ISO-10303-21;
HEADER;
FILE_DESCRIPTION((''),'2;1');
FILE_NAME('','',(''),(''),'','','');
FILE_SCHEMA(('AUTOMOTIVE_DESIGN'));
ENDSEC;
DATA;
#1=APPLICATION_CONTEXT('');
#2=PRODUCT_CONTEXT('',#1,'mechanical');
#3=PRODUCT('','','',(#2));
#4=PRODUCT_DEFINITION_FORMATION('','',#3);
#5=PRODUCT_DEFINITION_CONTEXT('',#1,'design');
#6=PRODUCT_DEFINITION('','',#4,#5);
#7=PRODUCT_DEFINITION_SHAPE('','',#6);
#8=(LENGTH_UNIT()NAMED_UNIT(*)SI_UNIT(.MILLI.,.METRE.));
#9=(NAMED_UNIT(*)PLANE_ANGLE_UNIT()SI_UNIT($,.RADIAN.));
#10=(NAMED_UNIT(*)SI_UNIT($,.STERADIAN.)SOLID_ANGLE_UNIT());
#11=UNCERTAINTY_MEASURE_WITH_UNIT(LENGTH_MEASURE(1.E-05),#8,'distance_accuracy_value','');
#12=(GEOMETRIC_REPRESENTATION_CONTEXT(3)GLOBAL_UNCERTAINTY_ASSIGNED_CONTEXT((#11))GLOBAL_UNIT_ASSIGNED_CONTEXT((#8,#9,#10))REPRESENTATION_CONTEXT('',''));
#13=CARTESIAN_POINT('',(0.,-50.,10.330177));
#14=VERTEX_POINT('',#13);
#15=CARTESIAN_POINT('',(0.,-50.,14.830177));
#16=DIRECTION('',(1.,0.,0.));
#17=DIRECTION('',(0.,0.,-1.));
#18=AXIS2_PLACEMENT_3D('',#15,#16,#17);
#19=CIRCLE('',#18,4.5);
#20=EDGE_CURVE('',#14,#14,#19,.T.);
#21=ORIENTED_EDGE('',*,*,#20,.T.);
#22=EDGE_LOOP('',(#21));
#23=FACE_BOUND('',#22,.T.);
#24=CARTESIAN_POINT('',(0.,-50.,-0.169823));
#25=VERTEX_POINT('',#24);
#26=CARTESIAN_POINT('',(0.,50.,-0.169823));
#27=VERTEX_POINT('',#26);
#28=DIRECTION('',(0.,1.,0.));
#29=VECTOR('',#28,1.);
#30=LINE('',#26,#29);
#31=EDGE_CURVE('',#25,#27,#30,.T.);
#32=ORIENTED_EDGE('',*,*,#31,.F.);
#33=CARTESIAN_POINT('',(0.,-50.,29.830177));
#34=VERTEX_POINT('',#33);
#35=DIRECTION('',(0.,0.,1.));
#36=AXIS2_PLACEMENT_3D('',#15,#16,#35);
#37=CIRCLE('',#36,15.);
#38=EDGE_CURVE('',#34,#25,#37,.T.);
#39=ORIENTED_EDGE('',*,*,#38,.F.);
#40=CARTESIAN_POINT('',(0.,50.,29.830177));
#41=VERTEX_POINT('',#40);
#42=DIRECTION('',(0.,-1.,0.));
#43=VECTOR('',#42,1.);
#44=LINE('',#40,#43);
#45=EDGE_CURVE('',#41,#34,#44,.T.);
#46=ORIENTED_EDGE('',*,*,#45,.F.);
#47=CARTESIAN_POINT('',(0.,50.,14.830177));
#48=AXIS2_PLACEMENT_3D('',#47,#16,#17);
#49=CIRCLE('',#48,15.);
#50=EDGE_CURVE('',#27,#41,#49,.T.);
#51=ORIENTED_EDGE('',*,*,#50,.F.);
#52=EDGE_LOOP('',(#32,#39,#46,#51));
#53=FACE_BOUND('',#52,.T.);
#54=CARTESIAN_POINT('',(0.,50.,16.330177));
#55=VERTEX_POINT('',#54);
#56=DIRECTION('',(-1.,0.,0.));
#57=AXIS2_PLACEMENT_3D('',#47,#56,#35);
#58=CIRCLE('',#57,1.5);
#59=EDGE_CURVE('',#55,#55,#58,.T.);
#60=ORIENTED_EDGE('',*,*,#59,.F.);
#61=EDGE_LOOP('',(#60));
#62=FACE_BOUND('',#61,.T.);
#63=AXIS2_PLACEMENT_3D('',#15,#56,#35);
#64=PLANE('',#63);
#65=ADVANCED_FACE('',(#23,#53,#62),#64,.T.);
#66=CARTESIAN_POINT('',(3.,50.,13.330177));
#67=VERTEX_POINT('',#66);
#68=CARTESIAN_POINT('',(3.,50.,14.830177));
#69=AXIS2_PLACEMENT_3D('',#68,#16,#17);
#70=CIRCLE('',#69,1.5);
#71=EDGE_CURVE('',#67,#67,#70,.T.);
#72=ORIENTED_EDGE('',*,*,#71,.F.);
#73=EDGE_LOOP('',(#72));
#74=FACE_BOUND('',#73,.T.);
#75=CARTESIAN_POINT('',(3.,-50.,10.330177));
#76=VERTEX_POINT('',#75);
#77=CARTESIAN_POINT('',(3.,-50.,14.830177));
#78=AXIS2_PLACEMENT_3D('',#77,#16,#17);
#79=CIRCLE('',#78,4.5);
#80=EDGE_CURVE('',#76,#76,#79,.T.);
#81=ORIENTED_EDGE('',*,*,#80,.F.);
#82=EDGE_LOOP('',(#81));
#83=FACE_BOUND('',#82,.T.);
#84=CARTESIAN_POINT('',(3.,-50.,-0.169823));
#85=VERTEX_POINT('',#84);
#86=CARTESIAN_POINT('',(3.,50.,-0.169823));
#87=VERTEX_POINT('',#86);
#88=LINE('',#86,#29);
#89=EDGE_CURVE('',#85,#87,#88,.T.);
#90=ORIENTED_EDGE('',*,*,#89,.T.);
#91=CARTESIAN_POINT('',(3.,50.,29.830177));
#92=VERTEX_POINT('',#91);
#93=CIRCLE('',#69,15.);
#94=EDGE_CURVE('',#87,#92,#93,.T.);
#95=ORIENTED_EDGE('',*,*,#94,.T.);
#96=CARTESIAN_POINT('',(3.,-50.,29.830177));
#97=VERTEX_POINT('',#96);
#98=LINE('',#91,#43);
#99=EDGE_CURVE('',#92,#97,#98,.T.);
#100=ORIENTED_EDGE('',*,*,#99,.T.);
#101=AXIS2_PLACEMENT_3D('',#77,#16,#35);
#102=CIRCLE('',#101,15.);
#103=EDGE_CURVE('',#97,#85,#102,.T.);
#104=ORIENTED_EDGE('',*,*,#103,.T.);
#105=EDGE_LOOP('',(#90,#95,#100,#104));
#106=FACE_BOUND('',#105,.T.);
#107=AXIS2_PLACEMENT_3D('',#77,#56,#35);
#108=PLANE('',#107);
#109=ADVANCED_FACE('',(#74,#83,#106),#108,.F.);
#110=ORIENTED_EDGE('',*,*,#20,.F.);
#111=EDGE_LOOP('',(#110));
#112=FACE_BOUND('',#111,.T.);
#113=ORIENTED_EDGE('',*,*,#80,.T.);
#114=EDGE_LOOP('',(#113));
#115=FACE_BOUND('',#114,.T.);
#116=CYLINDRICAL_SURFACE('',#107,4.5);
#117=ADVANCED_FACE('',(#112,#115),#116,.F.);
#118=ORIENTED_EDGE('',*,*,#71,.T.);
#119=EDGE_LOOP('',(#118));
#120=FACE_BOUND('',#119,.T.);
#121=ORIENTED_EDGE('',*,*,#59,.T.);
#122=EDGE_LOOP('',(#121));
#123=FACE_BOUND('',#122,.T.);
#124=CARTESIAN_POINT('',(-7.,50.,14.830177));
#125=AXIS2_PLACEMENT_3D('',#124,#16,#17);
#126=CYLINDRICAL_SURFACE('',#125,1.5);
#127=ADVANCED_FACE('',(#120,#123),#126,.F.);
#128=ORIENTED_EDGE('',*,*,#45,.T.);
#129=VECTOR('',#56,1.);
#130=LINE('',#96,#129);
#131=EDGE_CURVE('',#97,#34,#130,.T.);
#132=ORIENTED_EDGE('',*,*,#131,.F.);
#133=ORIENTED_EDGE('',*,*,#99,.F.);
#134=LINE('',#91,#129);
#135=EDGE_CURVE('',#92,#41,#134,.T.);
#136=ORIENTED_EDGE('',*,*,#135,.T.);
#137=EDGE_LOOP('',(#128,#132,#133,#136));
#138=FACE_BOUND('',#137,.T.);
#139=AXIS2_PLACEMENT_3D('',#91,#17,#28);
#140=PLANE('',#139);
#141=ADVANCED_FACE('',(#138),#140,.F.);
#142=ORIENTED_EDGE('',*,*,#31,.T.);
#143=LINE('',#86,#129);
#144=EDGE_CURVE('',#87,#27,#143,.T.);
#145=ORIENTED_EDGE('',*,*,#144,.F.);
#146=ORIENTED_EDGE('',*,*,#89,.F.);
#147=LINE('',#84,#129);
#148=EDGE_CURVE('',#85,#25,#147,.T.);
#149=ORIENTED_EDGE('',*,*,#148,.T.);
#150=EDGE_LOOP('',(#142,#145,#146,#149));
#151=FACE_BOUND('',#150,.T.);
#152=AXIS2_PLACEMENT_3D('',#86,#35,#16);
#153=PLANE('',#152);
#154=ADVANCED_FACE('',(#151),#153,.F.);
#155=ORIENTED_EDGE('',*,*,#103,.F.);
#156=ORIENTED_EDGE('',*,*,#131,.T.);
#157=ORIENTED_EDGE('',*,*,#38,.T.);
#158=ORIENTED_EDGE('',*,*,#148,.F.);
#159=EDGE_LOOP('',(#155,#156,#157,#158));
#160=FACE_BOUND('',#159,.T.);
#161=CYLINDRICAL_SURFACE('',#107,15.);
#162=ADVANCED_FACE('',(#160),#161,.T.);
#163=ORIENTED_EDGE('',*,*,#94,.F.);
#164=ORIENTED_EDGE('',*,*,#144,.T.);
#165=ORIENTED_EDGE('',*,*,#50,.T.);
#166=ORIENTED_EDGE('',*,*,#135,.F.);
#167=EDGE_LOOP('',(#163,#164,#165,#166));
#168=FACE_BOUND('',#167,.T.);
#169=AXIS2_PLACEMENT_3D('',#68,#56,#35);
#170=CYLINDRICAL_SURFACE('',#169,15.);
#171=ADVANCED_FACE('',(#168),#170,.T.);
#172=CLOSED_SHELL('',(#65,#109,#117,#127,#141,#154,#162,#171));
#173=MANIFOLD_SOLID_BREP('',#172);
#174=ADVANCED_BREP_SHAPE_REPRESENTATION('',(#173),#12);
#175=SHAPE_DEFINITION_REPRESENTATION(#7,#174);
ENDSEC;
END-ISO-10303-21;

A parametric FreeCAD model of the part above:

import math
import FreeCAD as App
import Part
import Sketcher
from FreeCAD import Vector
Q = App.Units.Quantity

doc = App.newDocument("Part")
body = doc.addObject("PartDesign::Body", "Body")

# Sketch on YZ plane
sketch1 = body.newObject("Sketcher::SketchObject", "Sketch")
sketch1.AttachmentSupport = (doc.getObject("YZ_Plane"), [""])
sketch1.MapMode = "FlatFace"
sketch1.addGeometry(Part.LineSegment(Vector(-50, -0.2, 0), Vector(50, -0.2, 0)), False)
sketch1.addGeometry(Part.ArcOfCircle(Part.Circle(Vector(50, 14.8, 0), Vector(0, 0, 1), 15), math.radians(-90), math.radians(90)), False)
sketch1.addGeometry(Part.LineSegment(Vector(50, 29.8, 0), Vector(-50, 29.8, 0)), False)
sketch1.addGeometry(Part.ArcOfCircle(Part.Circle(Vector(-50, 14.8, 0), Vector(0, 0, 1), 15), math.radians(90), math.radians(270)), False)
sketch1.addGeometry(Part.Circle(Vector(-50, 14.8, 0), Vector(0, 0, 1), 4.5), False)
sketch1.addConstraint(Sketcher.Constraint("Tangent", 0, 2, 1, 1))
sketch1.addConstraint(Sketcher.Constraint("Tangent", 1, 2, 2, 1))
sketch1.addConstraint(Sketcher.Constraint("Tangent", 2, 2, 3, 1))
sketch1.addConstraint(Sketcher.Constraint("Tangent", 3, 2, 0, 1))
sketch1.addConstraint(Sketcher.Constraint("Horizontal", 0))
sketch1.addConstraint(Sketcher.Constraint("Horizontal", 2))
sketch1.addConstraint(Sketcher.Constraint("Coincident", 4, 3, 3, 3))
sketch1.addConstraint(Sketcher.Constraint("Diameter", 4, Q("9 mm")))
sketch1.addConstraint(Sketcher.Constraint("Radius", 1, Q("15 mm")))
sketch1.addConstraint(Sketcher.Constraint("DistanceX", 0, 1, 0, 2, Q("100 mm")))
sketch1.addConstraint(Sketcher.Constraint("DistanceX", -1, 1, 1, 3, Q("50 mm")))
sketch1.addConstraint(Sketcher.Constraint("DistanceY", -1, 1, 1, 3, Q("14.830177 mm")))
pad1 = body.newObject("PartDesign::Pad", "Pad")
pad1.Profile = sketch1
pad1.Length = 3

# Sketch on YZ plane
sketch2 = body.newObject("Sketcher::SketchObject", "Sketch001")
sketch2.AttachmentSupport = (doc.getObject("YZ_Plane"), [""])
sketch2.MapMode = "FlatFace"
sketch2.AttachmentOffset = App.Placement(Vector(0, 0, 3), App.Rotation())
sketch2.addGeometry(Part.Circle(Vector(50, 14.8, 0), Vector(0, 0, 1), 1.5), False)
sketch2.addConstraint(Sketcher.Constraint("Diameter", 0, Q("3 mm")))
sketch2.addConstraint(Sketcher.Constraint("DistanceX", -1, 1, 0, 3, Q("50 mm")))
sketch2.addConstraint(Sketcher.Constraint("DistanceY", -1, 1, 0, 3, Q("14.830177 mm")))
pocket1 = body.newObject("PartDesign::Pocket", "Pocket")
pocket1.Profile = sketch2
pocket1.Length = 10

doc.recompute()
